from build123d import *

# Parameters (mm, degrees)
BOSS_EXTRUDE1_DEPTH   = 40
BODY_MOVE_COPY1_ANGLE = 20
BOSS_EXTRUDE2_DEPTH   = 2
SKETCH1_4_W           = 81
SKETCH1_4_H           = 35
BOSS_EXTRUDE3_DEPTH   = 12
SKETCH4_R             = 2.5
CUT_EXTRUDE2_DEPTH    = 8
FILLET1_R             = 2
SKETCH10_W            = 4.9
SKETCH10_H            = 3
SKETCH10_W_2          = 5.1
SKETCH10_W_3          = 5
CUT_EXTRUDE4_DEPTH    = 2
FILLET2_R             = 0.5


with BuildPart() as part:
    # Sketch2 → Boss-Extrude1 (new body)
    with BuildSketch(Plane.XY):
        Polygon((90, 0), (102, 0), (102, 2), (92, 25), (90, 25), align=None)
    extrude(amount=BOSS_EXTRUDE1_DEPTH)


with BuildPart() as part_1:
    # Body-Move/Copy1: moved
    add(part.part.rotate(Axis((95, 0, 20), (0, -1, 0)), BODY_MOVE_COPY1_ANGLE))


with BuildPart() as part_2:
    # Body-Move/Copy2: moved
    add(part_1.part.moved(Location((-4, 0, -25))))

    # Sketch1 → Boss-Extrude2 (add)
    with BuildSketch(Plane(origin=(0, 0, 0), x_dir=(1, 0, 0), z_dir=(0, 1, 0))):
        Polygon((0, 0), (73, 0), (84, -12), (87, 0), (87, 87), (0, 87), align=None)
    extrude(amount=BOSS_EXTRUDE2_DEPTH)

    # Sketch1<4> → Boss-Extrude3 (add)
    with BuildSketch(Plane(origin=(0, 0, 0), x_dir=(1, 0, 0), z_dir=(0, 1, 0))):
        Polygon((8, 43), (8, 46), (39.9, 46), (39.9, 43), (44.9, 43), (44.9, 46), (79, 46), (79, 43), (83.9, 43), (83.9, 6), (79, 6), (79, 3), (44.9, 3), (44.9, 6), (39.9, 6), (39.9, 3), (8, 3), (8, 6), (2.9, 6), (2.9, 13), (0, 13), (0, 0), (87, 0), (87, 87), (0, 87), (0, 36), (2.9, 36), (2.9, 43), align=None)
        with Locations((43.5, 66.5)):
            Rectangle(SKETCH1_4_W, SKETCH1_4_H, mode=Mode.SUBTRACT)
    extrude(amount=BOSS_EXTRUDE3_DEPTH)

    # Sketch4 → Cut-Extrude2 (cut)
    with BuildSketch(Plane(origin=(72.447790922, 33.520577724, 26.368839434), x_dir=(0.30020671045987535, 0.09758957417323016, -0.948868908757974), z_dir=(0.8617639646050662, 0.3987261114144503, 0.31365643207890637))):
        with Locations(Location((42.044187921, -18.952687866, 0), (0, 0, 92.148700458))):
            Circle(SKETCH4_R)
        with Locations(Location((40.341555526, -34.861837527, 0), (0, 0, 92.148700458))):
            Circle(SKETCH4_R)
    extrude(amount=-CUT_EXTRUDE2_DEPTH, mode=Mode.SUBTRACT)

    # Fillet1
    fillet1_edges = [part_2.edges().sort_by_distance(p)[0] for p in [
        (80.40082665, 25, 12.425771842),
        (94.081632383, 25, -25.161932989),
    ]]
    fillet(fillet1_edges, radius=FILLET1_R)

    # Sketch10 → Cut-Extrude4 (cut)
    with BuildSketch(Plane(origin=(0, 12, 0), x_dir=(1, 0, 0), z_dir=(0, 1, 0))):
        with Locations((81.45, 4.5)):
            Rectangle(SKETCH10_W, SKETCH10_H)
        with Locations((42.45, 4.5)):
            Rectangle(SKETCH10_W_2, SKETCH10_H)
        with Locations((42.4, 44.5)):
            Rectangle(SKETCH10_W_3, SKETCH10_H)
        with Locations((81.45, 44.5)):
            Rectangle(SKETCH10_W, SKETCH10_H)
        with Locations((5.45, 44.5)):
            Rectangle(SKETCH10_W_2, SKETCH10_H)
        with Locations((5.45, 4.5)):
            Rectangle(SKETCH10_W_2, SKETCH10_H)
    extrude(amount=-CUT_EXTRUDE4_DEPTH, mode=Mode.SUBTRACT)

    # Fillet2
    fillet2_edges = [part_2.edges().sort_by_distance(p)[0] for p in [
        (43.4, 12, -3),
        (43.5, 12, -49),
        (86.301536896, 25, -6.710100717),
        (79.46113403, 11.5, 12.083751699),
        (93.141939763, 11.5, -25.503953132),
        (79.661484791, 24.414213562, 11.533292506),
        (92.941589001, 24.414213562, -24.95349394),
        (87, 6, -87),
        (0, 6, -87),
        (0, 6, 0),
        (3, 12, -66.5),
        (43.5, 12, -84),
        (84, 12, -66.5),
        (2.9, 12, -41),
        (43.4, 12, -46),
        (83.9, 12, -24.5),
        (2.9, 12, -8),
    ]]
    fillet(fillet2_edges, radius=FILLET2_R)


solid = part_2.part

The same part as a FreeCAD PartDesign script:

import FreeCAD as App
import Part
import Sketcher
Q = App.Units.Quantity


def edges_at(feature, points):
    """Names of the edges that pass closest to the given points."""
    edges = feature.Shape.Edges
    near = lambda p: min(range(len(edges)), key=lambda i: edges[i].distToShape(Part.Vertex(*p))[0])
    return sorted({f"Edge{near(p) + 1}" for p in points})

doc = App.newDocument("Part")
body = doc.addObject("PartDesign::Body", "Body")

# Sketch on XY plane
sketch1 = doc.addObject("Sketcher::SketchObject", "Sketch")
body.addObject(sketch1)
sketch1.AttachmentSupport = (doc.XY_Plane, [""])
sketch1.MapMode = "FlatFace"
sketch1.addGeometry([
    Part.LineSegment(App.Vector(90, 0, 0), App.Vector(102, 0, 0)),  # 0
    Part.LineSegment(App.Vector(102, 0, 0), App.Vector(102, 2, 0)),  # 1
    Part.LineSegment(App.Vector(102, 2, 0), App.Vector(92, 25, 0)),  # 2
    Part.LineSegment(App.Vector(92, 25, 0), App.Vector(90, 25, 0)),  # 3
    Part.LineSegment(App.Vector(90, 25, 0), App.Vector(90, 0, 0)),  # 4
], False)
sketch1.addConstraint([
    Sketcher.Constraint("Coincident", 0, 2, 1, 1),
    Sketcher.Constraint("Coincident", 1, 2, 2, 1),
    Sketcher.Constraint("Coincident", 2, 2, 3, 1),
    Sketcher.Constraint("Coincident", 3, 2, 4, 1),
    Sketcher.Constraint("Coincident", 4, 2, 0, 1),
    Sketcher.Constraint("Horizontal", 0),
    Sketcher.Constraint("Vertical", 1),
    Sketcher.Constraint("Horizontal", 3),
    Sketcher.Constraint("Vertical", 4),
    Sketcher.Constraint("PointOnObject", 0, 2, -1),
    Sketcher.Constraint("Equal", 3, 1),
    Sketcher.Constraint("DistanceX", 0, 1, 0, 2, Q("12 mm")),
    Sketcher.Constraint("DistanceX", 3, 2, 3, 1, Q("2 mm")),
    Sketcher.Constraint("DistanceY", 4, 2, 4, 1, Q("25 mm")),
    Sketcher.Constraint("DistanceX", -1, 1, 0, 2, Q("102 mm")),
])
pad1 = doc.addObject("PartDesign::Pad", "Pad")
body.addObject(pad1)
pad1.Profile = sketch1
pad1.Length = 40
body2 = doc.addObject("PartDesign::Body", "Body001")
doc.recompute()

body.Placement = App.Placement(App.Vector(12.569604, 0, -31.285766), App.Rotation(App.Vector(0, -1, 0), 20))
boolean = doc.addObject("PartDesign::Boolean", "Boolean")
body2.addObject(boolean)
boolean.Type = "Fuse"
boolean.addObjects([body])
body3 = doc.addObject("PartDesign::Body", "Body002")
doc.recompute()

body2.Placement = App.Placement(App.Vector(-4, 0, -25), App.Rotation(App.Vector(0, 0, 1), 0))
boolean2 = doc.addObject("PartDesign::Boolean", "Boolean001")
body3.addObject(boolean2)
boolean2.Type = "Fuse"
boolean2.addObjects([body2])

# Sketch on XZ plane
sketch2 = doc.addObject("Sketcher::SketchObject", "Sketch001")
body3.addObject(sketch2)
sketch2.AttachmentSupport = (doc.getObject("XZ_Plane002"), [""])
sketch2.MapMode = "FlatFace"
sketch2.addGeometry([
    Part.LineSegment(App.Vector(0, 0, 0), App.Vector(73, 0, 0)),  # 0
    Part.LineSegment(App.Vector(73, 0, 0), App.Vector(84, 12, 0)),  # 1
    Part.LineSegment(App.Vector(84, 12, 0), App.Vector(87, 0, 0)),  # 2
    Part.LineSegment(App.Vector(87, 0, 0), App.Vector(87, -87, 0)),  # 3
    Part.LineSegment(App.Vector(87, -87, 0), App.Vector(0, -87, 0)),  # 4
    Part.LineSegment(App.Vector(0, -87, 0), App.Vector(0, 0, 0)),  # 5
], False)
sketch2.addConstraint([
    Sketcher.Constraint("Coincident", 0, 2, 1, 1),
    Sketcher.Constraint("Coincident", 1, 2, 2, 1),
    Sketcher.Constraint("Coincident", 2, 2, 3, 1),
    Sketcher.Constraint("Coincident", 3, 2, 4, 1),
    Sketcher.Constraint("Coincident", 4, 2, 5, 1),
    Sketcher.Constraint("Coincident", 5, 2, 0, 1),
    Sketcher.Constraint("Horizontal", 0),
    Sketcher.Constraint("Vertical", 3),
    Sketcher.Constraint("Horizontal", 4),
    Sketcher.Constraint("Vertical", 5),
    Sketcher.Constraint("Coincident", 5, 2, -1, 1),
    Sketcher.Constraint("PointOnObject", 2, 2, -1),
    Sketcher.Constraint("Equal", 4, 3),
    Sketcher.Constraint("DistanceX", 0, 1, 0, 2, Q("73 mm")),
    Sketcher.Constraint("DistanceX", 4, 2, 4, 1, Q("87 mm")),
    Sketcher.Constraint("DistanceX", -1, 1, 1, 2, Q("84 mm")),
    Sketcher.Constraint("DistanceY", -1, 1, 1, 2, Q("12 mm")),
])
pad2 = doc.addObject("PartDesign::Pad", "Pad001")
body3.addObject(pad2)
pad2.Profile = sketch2
pad2.Length = 2
pad2.Reversed = True

# Sketch on XZ plane
sketch3 = doc.addObject("Sketcher::SketchObject", "Sketch002")
body3.addObject(sketch3)
sketch3.AttachmentSupport = (doc.getObject("XZ_Plane002"), [""])
sketch3.MapMode = "FlatFace"
sketch3.addGeometry([
    Part.LineSegment(App.Vector(8, -43, 0), App.Vector(8, -46, 0)),  # 0
    Part.LineSegment(App.Vector(8, -46, 0), App.Vector(39.9, -46, 0)),  # 1
    Part.LineSegment(App.Vector(39.9, -46, 0), App.Vector(39.9, -43, 0)),  # 2
    Part.LineSegment(App.Vector(39.9, -43, 0), App.Vector(44.9, -43, 0)),  # 3
    Part.LineSegment(App.Vector(44.9, -43, 0), App.Vector(44.9, -46, 0)),  # 4
    Part.LineSegment(App.Vector(44.9, -46, 0), App.Vector(79, -46, 0)),  # 5
    Part.LineSegment(App.Vector(79, -46, 0), App.Vector(79, -43, 0)),  # 6
    Part.LineSegment(App.Vector(79, -43, 0), App.Vector(83.9, -43, 0)),  # 7
    Part.LineSegment(App.Vector(83.9, -43, 0), App.Vector(83.9, -6, 0)),  # 8
    Part.LineSegment(App.Vector(83.9, -6, 0), App.Vector(79, -6, 0)),  # 9
    Part.LineSegment(App.Vector(79, -6, 0), App.Vector(79, -3, 0)),  # 10
    Part.LineSegment(App.Vector(79, -3, 0), App.Vector(44.9, -3, 0)),  # 11
    Part.LineSegment(App.Vector(44.9, -3, 0), App.Vector(44.9, -6, 0)),  # 12
    Part.LineSegment(App.Vector(44.9, -6, 0), App.Vector(39.9, -6, 0)),  # 13
    Part.LineSegment(App.Vector(39.9, -6, 0), App.Vector(39.9, -3, 0)),  # 14
    Part.LineSegment(App.Vector(39.9, -3, 0), App.Vector(8, -3, 0)),  # 15
    Part.LineSegment(App.Vector(8, -3, 0), App.Vector(8, -6, 0)),  # 16
    Part.LineSegment(App.Vector(8, -6, 0), App.Vector(2.9, -6, 0)),  # 17
    Part.LineSegment(App.Vector(2.9, -6, 0), App.Vector(2.9, -13, 0)),  # 18
    Part.LineSegment(App.Vector(2.9, -13, 0), App.Vector(0, -13, 0)),  # 19
    Part.LineSegment(App.Vector(0, -13, 0), App.Vector(0, 0, 0)),  # 20
    Part.LineSegment(App.Vector(0, 0, 0), App.Vector(87, 0, 0)),  # 21
    Part.LineSegment(App.Vector(87, 0, 0), App.Vector(87, -87, 0)),  # 22
    Part.LineSegment(App.Vector(87, -87, 0), App.Vector(0, -87, 0)),  # 23
    Part.LineSegment(App.Vector(0, -87, 0), App.Vector(0, -36, 0)),  # 24
    Part.LineSegment(App.Vector(0, -36, 0), App.Vector(2.9, -36, 0)),  # 25
    Part.LineSegment(App.Vector(2.9, -36, 0), App.Vector(2.9, -43, 0)),  # 26
    Part.LineSegment(App.Vector(2.9, -43, 0), App.Vector(8, -43, 0)),  # 27
    Part.LineSegment(App.Vector(84, -49, 0), App.Vector(3, -49, 0)),  # 28
    Part.LineSegment(App.Vector(3, -49, 0), App.Vector(3, -84, 0)),  # 29
    Part.LineSegment(App.Vector(3, -84, 0), App.Vector(84, -84, 0)),  # 30
    Part.LineSegment(App.Vector(84, -84, 0), App.Vector(84, -49, 0)),  # 31
], False)
sketch3.addConstraint([
    Sketcher.Constraint("Coincident", 0, 2, 1, 1),
    Sketcher.Constraint("Coincident", 1, 2, 2, 1),
    Sketcher.Constraint("Coincident", 2, 2, 3, 1),
    Sketcher.Constraint("Coincident", 3, 2, 4, 1),
    Sketcher.Constraint("Coincident", 4, 2, 5, 1),
    Sketcher.Constraint("Coincident", 5, 2, 6, 1),
    Sketcher.Constraint("Coincident", 6, 2, 7, 1),
    Sketcher.Constraint("Coincident", 7, 2, 8, 1),
    Sketcher.Constraint("Coincident", 8, 2, 9, 1),
    Sketcher.Constraint("Coincident", 9, 2, 10, 1),
    Sketcher.Constraint("Coincident", 10, 2, 11, 1),
    Sketcher.Constraint("Coincident", 11, 2, 12, 1),
    Sketcher.Constraint("Coincident", 12, 2, 13, 1),
    Sketcher.Constraint("Coincident", 13, 2, 14, 1),
    Sketcher.Constraint("Coincident", 14, 2, 15, 1),
    Sketcher.Constraint("Coincident", 15, 2, 16, 1),
    Sketcher.Constraint("Coincident", 16, 2, 17, 1),
    Sketcher.Constraint("Coincident", 17, 2, 18, 1),
    Sketcher.Constraint("Coincident", 18, 2, 19, 1),
    Sketcher.Constraint("Coincident", 19, 2, 20, 1),
    Sketcher.Constraint("Coincident", 20, 2, 21, 1),
    Sketcher.Constraint("Coincident", 21, 2, 22, 1),
    Sketcher.Constraint("Coincident", 22, 2, 23, 1),
    Sketcher.Constraint("Coincident", 23, 2, 24, 1),
    Sketcher.Constraint("Coincident", 24, 2, 25, 1),
    Sketcher.Constraint("Coincident", 25, 2, 26, 1),
    Sketcher.Constraint("Coincident", 26, 2, 27, 1),
    Sketcher.Constraint("Coincident", 27, 2, 0, 1),
    Sketcher.Constraint("Coincident", 28, 2, 29, 1),
    Sketcher.Constraint("Coincident", 29, 2, 30, 1),
    Sketcher.Constraint("Coincident", 30, 2, 31, 1),
    Sketcher.Constraint("Coincident", 31, 2, 28, 1),
    Sketcher.Constraint("Vertical", 0),
    Sketcher.Constraint("Horizontal", 1),
    Sketcher.Constraint("Vertical", 2),
    Sketcher.Constraint("Horizontal", 3),
    Sketcher.Constraint("Vertical", 4),
    Sketcher.Constraint("Horizontal", 5),
    Sketcher.Constraint("Vertical", 6),
    Sketcher.Constraint("Horizontal", 7),
    Sketcher.Constraint("Vertical", 8),
    Sketcher.Constraint("Horizontal", 9),
    Sketcher.Constraint("Vertical", 10),
    Sketcher.Constraint("Horizontal", 11),
    Sketcher.Constraint("Vertical", 12),
    Sketcher.Constraint("Horizontal", 13),
    Sketcher.Constraint("Vertical", 14),
    Sketcher.Constraint("Horizontal", 15),
    Sketcher.Constraint("Vertical", 16),
    Sketcher.Constraint("Horizontal", 17),
    Sketcher.Constraint("Vertical", 18),
    Sketcher.Constraint("Horizontal", 19),
    Sketcher.Constraint("Vertical", 20),
    Sketcher.Constraint("Horizontal", 21),
    Sketcher.Constraint("Vertical", 22),
    Sketcher.Constraint("Horizontal", 23),
    Sketcher.Constraint("Vertical", 24),
    Sketcher.Constraint("Horizontal", 25),
    Sketcher.Constraint("Vertical", 26),
    Sketcher.Constraint("Horizontal", 27),
    Sketcher.Constraint("Horizontal", 28),
    Sketcher.Constraint("Vertical", 29),
    Sketcher.Constraint("Horizontal", 30),
    Sketcher.Constraint("Vertical", 31),
    Sketcher.Constraint("Coincident", 20, 2, -1, 1),
    Sketcher.Constraint("PointOnObject", 23, 2, -2),
    Sketcher.Constraint("Horizontal", 1, 2, 4, 2),
    Sketcher.Constraint("Horizontal", 3, 2, 6, 2),
    Sketcher.Constraint("Horizontal", 9, 2, 12, 2),
    Sketcher.Constraint("Horizontal", 11, 2, 14, 2),
    Sketcher.Constraint("Horizontal", 13, 2, 16, 2),
    Sketcher.Constraint("Horizontal", 7, 2, 26, 2),
    Sketcher.Constraint("Vertical", 6, 2, 9, 2),
    Sketcher.Constraint("Vertical", 4, 2, 11, 2),
    Sketcher.Constraint("Vertical", 2, 2, 13, 2),
    Sketcher.Constraint("Vertical", 0, 2, 15, 2),
    Sketcher.Constraint("Vertical", 18, 2, 25, 2),
    Sketcher.Constraint("Equal", 6, 10),
    Sketcher.Constraint("Equal", 23, 22),
    Sketcher.Constraint("Equal", 18, 26),
    Sketcher.Constraint("DistanceX", 3, 1, 3, 2, Q("5 mm")),
    Sketcher.Constraint("DistanceX", 21, 1, 21, 2, Q("87 mm")),
    Sketcher.Constraint("DistanceX", 28, 2, 28, 1, Q("81 mm")),
    Sketcher.Constraint("DistanceY", 0, 2, 0, 1, Q("3 mm")),
    Sketcher.Constraint("DistanceY", 8, 1, 8, 2, Q("37 mm")),
    Sketcher.Constraint("DistanceY", 18, 2, 18, 1, Q("7 mm")),
    Sketcher.Constraint("DistanceY", 20, 1, 20, 2, Q("13 mm")),
    Sketcher.Constraint("DistanceY", 29, 2, 29, 1, Q("35 mm")),
    Sketcher.Constraint("DistanceX", 1, 1, 1, 2, Q("31.9 mm")),
    Sketcher.Constraint("DistanceX", 5, 1, 5, 2, Q("34.1 mm")),
    Sketcher.Constraint("DistanceX", 7, 1, 7, 2, Q("4.9 mm")),
    Sketcher.Constraint("DistanceX", 17, 2, 17, 1, Q("5.1 mm")),
    Sketcher.Constraint("DistanceX", 19, 2, 19, 1, Q("2.9 mm")),
    Sketcher.Constraint("DistanceX", -1, 1, 28, 2, Q("3 mm")),
    Sketcher.Constraint("DistanceY", 28, 2, -1, 1, Q("49 mm")),
])
pad3 = doc.addObject("PartDesign::Pad", "Pad002")
body3.addObject(pad3)
pad3.Profile = sketch3
pad3.Length = 12
pad3.Reversed = True

# Sketch on an angled plane
sketch4 = doc.addObject("Sketcher::SketchObject", "Sketch003")
body3.addObject(sketch4)
sketch4.Placement = App.Placement(App.Vector(72.447791, 33.520578, 26.368839), App.Rotation(App.Vector(0.30020671, 0.097589574, -0.948868909), App.Vector(-0.408948408, 0.911862799, -0.035601076), App.Vector(0.861763965, 0.398726111, 0.313656432), "ZXY"))
sketch4.addGeometry([
    Part.Circle(App.Vector(42.044188, -18.952688, 0), App.Vector(0, 0, 1), 2.5),
    Part.Circle(App.Vector(40.341556, -34.861838, 0), App.Vector(0, 0, 1), 2.5),
], False)
sketch4.addConstraint([
    Sketcher.Constraint("Equal", 0, 1),
    Sketcher.Constraint("Diameter", 0, Q("5 mm")),
    Sketcher.Constraint("DistanceY", 1, 3, 0, 3, Q("15.90915 mm")),
    Sketcher.Constraint("DistanceX", -1, 1, 0, 3, Q("42.044188 mm")),
    Sketcher.Constraint("DistanceY", 0, 3, -1, 1, Q("18.952688 mm")),
    Sketcher.Constraint("DistanceX", -1, 1, 1, 3, Q("40.341556 mm")),
])
pocket1 = doc.addObject("PartDesign::Pocket", "Pocket")
body3.addObject(pocket1)
pocket1.Profile = sketch4
pocket1.Length = 8
doc.recompute()

fillet = doc.addObject("PartDesign::Fillet", "Fillet")
body3.addObject(fillet)
fillet.Base = (pocket1, edges_at(pocket1, [(80.401, 25, 12.426), (94.082, 25, -25.162)]))
fillet.Radius = 2

# Sketch on XZ plane
sketch5 = doc.addObject("Sketcher::SketchObject", "Sketch004")
body3.addObject(sketch5)
sketch5.AttachmentSupport = (doc.getObject("XZ_Plane002"), [""])
sketch5.MapMode = "FlatFace"
sketch5.AttachmentOffset = App.Placement(App.Vector(0, 0, -12), App.Rotation())
sketch5.addGeometry([
    Part.LineSegment(App.Vector(79, -6, 0), App.Vector(79, -3, 0)),  # 0
    Part.LineSegment(App.Vector(79, -3, 0), App.Vector(83.9, -3, 0)),  # 1
    Part.LineSegment(App.Vector(83.9, -3, 0), App.Vector(83.9, -6, 0)),  # 2
    Part.LineSegment(App.Vector(83.9, -6, 0), App.Vector(79, -6, 0)),  # 3
    Part.LineSegment(App.Vector(39.9, -6, 0), App.Vector(39.9, -3, 0)),  # 4
    Part.LineSegment(App.Vector(39.9, -3, 0), App.Vector(45, -3, 0)),  # 5
    Part.LineSegment(App.Vector(45, -3, 0), App.Vector(45, -6, 0)),  # 6
    Part.LineSegment(App.Vector(45, -6, 0), App.Vector(39.9, -6, 0)),  # 7
    Part.LineSegment(App.Vector(39.9, -46, 0), App.Vector(39.9, -43, 0)),  # 8
    Part.LineSegment(App.Vector(39.9, -43, 0), App.Vector(44.9, -43, 0)),  # 9
    Part.LineSegment(App.Vector(44.9, -43, 0), App.Vector(44.9, -46, 0)),  # 10
    Part.LineSegment(App.Vector(44.9, -46, 0), App.Vector(39.9, -46, 0)),  # 11
    Part.LineSegment(App.Vector(79, -46, 0), App.Vector(79, -43, 0)),  # 12
    Part.LineSegment(App.Vector(79, -43, 0), App.Vector(83.9, -43, 0)),  # 13
    Part.LineSegment(App.Vector(83.9, -43, 0), App.Vector(83.9, -46, 0)),  # 14
    Part.LineSegment(App.Vector(83.9, -46, 0), App.Vector(79, -46, 0)),  # 15
    Part.LineSegment(App.Vector(2.9, -46, 0), App.Vector(2.9, -43, 0)),  # 16
    Part.LineSegment(App.Vector(2.9, -43, 0), App.Vector(8, -43, 0)),  # 17
    Part.LineSegment(App.Vector(8, -43, 0), App.Vector(8, -46, 0)),  # 18
    Part.LineSegment(App.Vector(8, -46, 0), App.Vector(2.9, -46, 0)),  # 19
    Part.LineSegment(App.Vector(2.9, -6, 0), App.Vector(2.9, -3, 0)),  # 20
    Part.LineSegment(App.Vector(2.9, -3, 0), App.Vector(8, -3, 0)),  # 21
    Part.LineSegment(App.Vector(8, -3, 0), App.Vector(8, -6, 0)),  # 22
    Part.LineSegment(App.Vector(8, -6, 0), App.Vector(2.9, -6, 0)),  # 23
], False)
sketch5.addConstraint([
    Sketcher.Constraint("Coincident", 0, 2, 1, 1),
    Sketcher.Constraint("Coincident", 1, 2, 2, 1),
    Sketcher.Constraint("Coincident", 2, 2, 3, 1),
    Sketcher.Constraint("Coincident", 3, 2, 0, 1),
    Sketcher.Constraint("Coincident", 4, 2, 5, 1),
    Sketcher.Constraint("Coincident", 5, 2, 6, 1),
    Sketcher.Constraint("Coincident", 6, 2, 7, 1),
    Sketcher.Constraint("Coincident", 7, 2, 4, 1),
    Sketcher.Constraint("Coincident", 8, 2, 9, 1),
    Sketcher.Constraint("Coincident", 9, 2, 10, 1),
    Sketcher.Constraint("Coincident", 10, 2, 11, 1),
    Sketcher.Constraint("Coincident", 11, 2, 8, 1),
    Sketcher.Constraint("Coincident", 12, 2, 13, 1),
    Sketcher.Constraint("Coincident", 13, 2, 14, 1),
    Sketcher.Constraint("Coincident", 14, 2, 15, 1),
    Sketcher.Constraint("Coincident", 15, 2, 12, 1),
    Sketcher.Constraint("Coincident", 16, 2, 17, 1),
    Sketcher.Constraint("Coincident", 17, 2, 18, 1),
    Sketcher.Constraint("Coincident", 18, 2, 19, 1),
    Sketcher.Constraint("Coincident", 19, 2, 16, 1),
    Sketcher.Constraint("Coincident", 20, 2, 21, 1),
    Sketcher.Constraint("Coincident", 21, 2, 22, 1),
    Sketcher.Constraint("Coincident", 22, 2, 23, 1),
    Sketcher.Constraint("Coincident", 23, 2, 20, 1),
    Sketcher.Constraint("Vertical", 0),
    Sketcher.Constraint("Horizontal", 1),
    Sketcher.Constraint("Vertical", 2),
    Sketcher.Constraint("Horizontal", 3),
    Sketcher.Constraint("Vertical", 4),
    Sketcher.Constraint("Horizontal", 5),
    Sketcher.Constraint("Vertical", 6),
    Sketcher.Constraint("Horizontal", 7),
    Sketcher.Constraint("Vertical", 8),
    Sketcher.Constraint("Horizontal", 9),
    Sketcher.Constraint("Vertical", 10),
    Sketcher.Constraint("Horizontal", 11),
    Sketcher.Constraint("Vertical", 12),
    Sketcher.Constraint("Horizontal", 13),
    Sketcher.Constraint("Vertical", 14),
    Sketcher.Constraint("Horizontal", 15),
    Sketcher.Constraint("Vertical", 16),
    Sketcher.Constraint("Horizontal", 17),
    Sketcher.Constraint("Vertical", 18),
    Sketcher.Constraint("Horizontal", 19),
    Sketcher.Constraint("Vertical", 20),
    Sketcher.Constraint("Horizontal", 21),
    Sketcher.Constraint("Vertical", 22),
    Sketcher.Constraint("Horizontal", 23),
    Sketcher.Constraint("Horizontal", 1, 2, 4, 2),
    Sketcher.Constraint("Horizontal", 3, 2, 6, 2),
    Sketcher.Constraint("Horizontal", 9, 2, 12, 2),
    Sketcher.Constraint("Horizontal", 11, 2, 14, 2),
    Sketcher.Constraint("Horizontal", 13, 2, 16, 2),
    Sketcher.Constraint("Horizontal", 15, 2, 18, 2),
    Sketcher.Constraint("Horizontal", 5, 2, 20, 2),
    Sketcher.Constraint("Horizontal", 7, 2, 22, 2),
    Sketcher.Constraint("Vertical", 7, 2, 8, 2),
    Sketcher.Constraint("Vertical", 3, 2, 12, 2),
    Sketcher.Constraint("Vertical", 2, 2, 13, 2),
    Sketcher.Constraint("Vertical", 19, 2, 20, 2),
    Sketcher.Constraint("Vertical", 18, 2, 21, 2),
    Sketcher.Constraint("Equal", 7, 17),
    Sketcher.Constraint("Equal", 6, 8),
    Sketcher.Constraint("DistanceX", 9, 1, 9, 2, Q("5 mm")),
    Sketcher.Constraint("DistanceY", 0, 1, 0, 2, Q("3 mm")),
    Sketcher.Constraint("DistanceX", 1, 1, 1, 2, Q("4.9 mm")),
    Sketcher.Constraint("DistanceX", 5, 1, 5, 2, Q("5.1 mm")),
    Sketcher.Constraint("DistanceX", -1, 1, 0, 2, Q("79 mm")),
    Sketcher.Constraint("DistanceY", 0, 2, -1, 1, Q("3 mm")),
    Sketcher.Constraint("DistanceX", -1, 1, 5, 2, Q("45 mm")),
    Sketcher.Constraint("DistanceY", 8, 2, -1, 1, Q("43 mm")),
    Sketcher.Constraint("DistanceX", -1, 1, 17, 2, Q("8 mm")),
])
pocket2 = doc.addObject("PartDesign::Pocket", "Pocket001")
body3.addObject(pocket2)
pocket2.Profile = sketch5
pocket2.Length = 2
pocket2.Reversed = True
doc.recompute()

fillet2 = doc.addObject("PartDesign::Fillet", "Fillet001")
body3.addObject(fillet2)
fillet2.Base = (pocket2, edges_at(pocket2, [
    (43.4, 12, -3),
    (43.5, 12, -49),
    (86.302, 25, -6.71),
    (79.461, 11.5, 12.084),
    (93.142, 11.5, -25.504),
    (79.661, 24.414, 11.533),
    (92.942, 24.414, -24.953),
    (87, 6, -87),
    (0, 6, -87),
    (0, 6, 0),
    (3, 12, -66.5),
    (43.5, 12, -84),
    (84, 12, -66.5),
    (2.9, 12, -41),
    (43.4, 12, -46),
    (83.9, 12, -24.5),
    (2.9, 12, -8),
]))
fillet2.Radius = 0.5

doc.recompute()
